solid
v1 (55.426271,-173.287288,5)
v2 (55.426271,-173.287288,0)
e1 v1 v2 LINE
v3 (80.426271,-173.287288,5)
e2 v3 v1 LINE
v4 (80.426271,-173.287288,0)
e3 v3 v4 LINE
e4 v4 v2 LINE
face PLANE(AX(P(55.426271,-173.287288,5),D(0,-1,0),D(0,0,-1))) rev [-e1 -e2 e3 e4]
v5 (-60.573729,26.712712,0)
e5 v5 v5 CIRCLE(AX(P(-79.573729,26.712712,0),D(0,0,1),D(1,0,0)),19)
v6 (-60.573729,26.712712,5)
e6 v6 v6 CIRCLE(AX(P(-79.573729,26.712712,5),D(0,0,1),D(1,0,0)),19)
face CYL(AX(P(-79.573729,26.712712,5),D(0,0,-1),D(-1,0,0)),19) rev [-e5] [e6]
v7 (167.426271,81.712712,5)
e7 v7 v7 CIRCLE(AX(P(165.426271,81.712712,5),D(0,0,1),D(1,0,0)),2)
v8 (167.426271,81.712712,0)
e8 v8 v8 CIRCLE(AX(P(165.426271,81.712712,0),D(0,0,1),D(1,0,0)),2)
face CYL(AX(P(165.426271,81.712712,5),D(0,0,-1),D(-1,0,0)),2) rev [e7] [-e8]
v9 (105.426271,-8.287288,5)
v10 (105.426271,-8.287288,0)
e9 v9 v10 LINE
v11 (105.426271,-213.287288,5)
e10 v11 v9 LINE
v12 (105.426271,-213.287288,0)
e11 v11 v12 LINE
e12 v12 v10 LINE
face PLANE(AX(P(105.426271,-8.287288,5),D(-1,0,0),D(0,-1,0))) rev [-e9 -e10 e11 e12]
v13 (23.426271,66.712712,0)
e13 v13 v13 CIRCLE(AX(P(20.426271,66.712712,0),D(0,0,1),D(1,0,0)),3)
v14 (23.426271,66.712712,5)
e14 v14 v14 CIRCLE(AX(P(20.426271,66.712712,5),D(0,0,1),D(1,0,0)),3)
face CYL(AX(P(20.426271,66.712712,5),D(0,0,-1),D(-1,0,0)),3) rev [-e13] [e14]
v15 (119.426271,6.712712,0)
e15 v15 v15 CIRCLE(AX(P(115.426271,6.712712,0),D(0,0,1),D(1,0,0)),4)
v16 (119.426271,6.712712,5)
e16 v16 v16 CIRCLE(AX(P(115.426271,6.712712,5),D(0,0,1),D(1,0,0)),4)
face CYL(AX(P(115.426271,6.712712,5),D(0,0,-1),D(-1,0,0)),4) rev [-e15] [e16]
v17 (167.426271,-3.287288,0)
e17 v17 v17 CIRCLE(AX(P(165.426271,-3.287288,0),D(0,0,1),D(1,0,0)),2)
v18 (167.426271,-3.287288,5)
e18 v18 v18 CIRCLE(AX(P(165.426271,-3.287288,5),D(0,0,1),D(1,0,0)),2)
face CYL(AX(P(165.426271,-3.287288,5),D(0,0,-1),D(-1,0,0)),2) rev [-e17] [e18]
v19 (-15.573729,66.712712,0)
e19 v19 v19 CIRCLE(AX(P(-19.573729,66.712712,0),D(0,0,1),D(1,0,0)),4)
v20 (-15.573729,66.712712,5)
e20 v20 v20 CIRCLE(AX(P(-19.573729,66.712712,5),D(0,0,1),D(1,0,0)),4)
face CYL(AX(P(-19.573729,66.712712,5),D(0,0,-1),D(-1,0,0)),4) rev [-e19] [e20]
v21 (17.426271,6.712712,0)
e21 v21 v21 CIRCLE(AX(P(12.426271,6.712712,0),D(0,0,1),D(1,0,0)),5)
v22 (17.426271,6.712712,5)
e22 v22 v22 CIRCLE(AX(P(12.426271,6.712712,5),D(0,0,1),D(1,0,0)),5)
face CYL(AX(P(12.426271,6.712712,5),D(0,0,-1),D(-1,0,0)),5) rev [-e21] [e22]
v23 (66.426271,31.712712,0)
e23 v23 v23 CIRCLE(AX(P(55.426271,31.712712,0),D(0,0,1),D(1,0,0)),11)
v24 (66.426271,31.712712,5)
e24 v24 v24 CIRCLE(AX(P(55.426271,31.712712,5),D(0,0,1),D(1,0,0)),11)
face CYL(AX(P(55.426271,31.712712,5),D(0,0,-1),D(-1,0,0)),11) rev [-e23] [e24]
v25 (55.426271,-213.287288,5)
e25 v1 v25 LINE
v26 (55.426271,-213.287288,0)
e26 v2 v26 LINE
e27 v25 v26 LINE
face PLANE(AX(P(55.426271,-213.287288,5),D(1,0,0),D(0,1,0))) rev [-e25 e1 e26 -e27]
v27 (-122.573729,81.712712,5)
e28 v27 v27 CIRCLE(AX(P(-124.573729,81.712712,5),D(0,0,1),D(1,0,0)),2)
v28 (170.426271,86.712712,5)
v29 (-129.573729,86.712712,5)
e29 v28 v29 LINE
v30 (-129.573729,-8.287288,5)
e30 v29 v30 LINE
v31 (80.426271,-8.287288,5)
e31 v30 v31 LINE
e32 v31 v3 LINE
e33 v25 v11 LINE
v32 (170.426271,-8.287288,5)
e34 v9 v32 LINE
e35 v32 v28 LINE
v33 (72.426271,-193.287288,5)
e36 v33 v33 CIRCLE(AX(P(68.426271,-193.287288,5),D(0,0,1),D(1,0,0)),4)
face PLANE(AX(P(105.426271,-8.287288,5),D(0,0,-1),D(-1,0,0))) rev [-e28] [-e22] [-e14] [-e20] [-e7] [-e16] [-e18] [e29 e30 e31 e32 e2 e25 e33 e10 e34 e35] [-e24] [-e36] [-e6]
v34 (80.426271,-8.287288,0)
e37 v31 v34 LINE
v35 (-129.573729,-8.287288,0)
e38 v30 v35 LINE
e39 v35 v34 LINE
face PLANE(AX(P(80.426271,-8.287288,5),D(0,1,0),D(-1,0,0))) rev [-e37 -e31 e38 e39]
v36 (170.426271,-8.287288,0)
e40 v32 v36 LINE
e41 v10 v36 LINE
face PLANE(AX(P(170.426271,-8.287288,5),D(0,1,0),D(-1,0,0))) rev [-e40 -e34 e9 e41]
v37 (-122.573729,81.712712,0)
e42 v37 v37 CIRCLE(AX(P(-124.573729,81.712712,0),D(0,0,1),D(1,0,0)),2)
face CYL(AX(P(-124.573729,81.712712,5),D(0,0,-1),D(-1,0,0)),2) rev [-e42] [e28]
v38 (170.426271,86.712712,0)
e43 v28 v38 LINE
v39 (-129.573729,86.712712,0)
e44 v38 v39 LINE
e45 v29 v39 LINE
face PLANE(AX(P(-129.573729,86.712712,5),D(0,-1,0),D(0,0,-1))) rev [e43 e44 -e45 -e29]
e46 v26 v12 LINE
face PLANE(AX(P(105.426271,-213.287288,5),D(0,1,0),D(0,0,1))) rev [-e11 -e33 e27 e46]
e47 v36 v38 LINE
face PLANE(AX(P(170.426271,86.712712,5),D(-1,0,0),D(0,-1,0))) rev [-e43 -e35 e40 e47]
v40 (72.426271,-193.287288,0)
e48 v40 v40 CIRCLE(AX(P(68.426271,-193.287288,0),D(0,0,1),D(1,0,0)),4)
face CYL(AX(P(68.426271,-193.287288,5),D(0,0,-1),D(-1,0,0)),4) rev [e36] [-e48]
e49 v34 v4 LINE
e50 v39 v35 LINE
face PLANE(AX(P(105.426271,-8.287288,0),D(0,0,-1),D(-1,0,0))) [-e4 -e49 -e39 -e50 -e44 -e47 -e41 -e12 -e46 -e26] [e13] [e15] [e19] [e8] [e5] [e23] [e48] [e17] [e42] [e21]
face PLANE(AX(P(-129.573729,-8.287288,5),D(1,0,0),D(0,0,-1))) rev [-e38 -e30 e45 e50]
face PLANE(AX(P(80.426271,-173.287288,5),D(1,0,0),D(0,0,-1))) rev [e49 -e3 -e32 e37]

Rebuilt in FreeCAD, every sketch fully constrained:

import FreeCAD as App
import Part
import Sketcher


def add_polygon(sketch, points):
    """Adds a closed chain of lines whose ends are joined by coincident constraints."""
    first, n = sketch.GeometryCount, len(points)
    for a, b in zip(points, points[1:] + points[:1]):
        sketch.addGeometry(Part.LineSegment(App.Vector(*a, 0), App.Vector(*b, 0)), False)
    for i in range(n):
        sketch.addConstraint(Sketcher.Constraint("Coincident", first + i, 2, first + (i + 1) % n, 1))

doc = App.newDocument("Part")
body = doc.addObject("PartDesign::Body", "Body")

# Sketch on XY plane
sketch1 = body.newObject("Sketcher::SketchObject", "Sketch")
sketch1.AttachmentSupport = (doc.getObject("XY_Plane"), [""])
sketch1.MapMode = "FlatFace"
add_polygon(sketch1, [(55.4, -213.3), (105.4, -213.3), (105.4, -8.3), (170.4, -8.3), (170.4, 86.7), (-129.6, 86.7), (-129.6, -8.3), (80.4, -8.3), (80.4, -173.3), (55.4, -173.3)])  # lines 0-9
sketch1.addGeometry(Part.Circle(App.Vector(68.4, -193.3, 0), App.Vector(0, 0, 1), 4), False)  # 10
sketch1.addGeometry(Part.Circle(App.Vector(165.4, -3.3, 0), App.Vector(0, 0, 1), 2), False)  # 11
sketch1.addGeometry(Part.Circle(App.Vector(115.4, 6.7, 0), App.Vector(0, 0, 1), 4), False)  # 12
sketch1.addGeometry(Part.Circle(App.Vector(165.4, 81.7, 0), App.Vector(0, 0, 1), 2), False)  # 13
sketch1.addGeometry(Part.Circle(App.Vector(55.4, 31.7, 0), App.Vector(0, 0, 1), 11), False)  # 14
sketch1.addGeometry(Part.Circle(App.Vector(12.4, 6.7, 0), App.Vector(0, 0, 1), 5), False)  # 15
sketch1.addGeometry(Part.Circle(App.Vector(20.4, 66.7, 0), App.Vector(0, 0, 1), 3), False)  # 16
sketch1.addGeometry(Part.Circle(App.Vector(-19.6, 66.7, 0), App.Vector(0, 0, 1), 4), False)  # 17
sketch1.addGeometry(Part.Circle(App.Vector(-79.6, 26.7, 0), App.Vector(0, 0, 1), 19), False)  # 18
sketch1.addGeometry(Part.Circle(App.Vector(-124.6, 81.7, 0), App.Vector(0, 0, 1), 2), False)  # 19
sketch1.addConstraint([
    Sketcher.Constraint("Horizontal", 0),
    Sketcher.Constraint("Vertical", 1),
    Sketcher.Constraint("Horizontal", 2),
    Sketcher.Constraint("Vertical", 3),
    Sketcher.Constraint("Horizontal", 4),
    Sketcher.Constraint("Vertical", 5),
    Sketcher.Constraint("Horizontal", 6),
    Sketcher.Constraint("Vertical", 7),
    Sketcher.Constraint("Horizontal", 8),
    Sketcher.Constraint("Vertical", 9),
    Sketcher.Constraint("Equal", 10, 12),
    Sketcher.Constraint("Equal", 11, 13),
    Sketcher.Constraint("Equal", 12, 17),
    Sketcher.Constraint("Equal", 13, 19),
    Sketcher.Constraint("Horizontal", 12, 3, 15, 3),
    Sketcher.Constraint("Horizontal", 16, 3, 17, 3),
    Sketcher.Constraint("Horizontal", 13, 3, 19, 3),
    Sketcher.Constraint("Horizontal", 2, 2, 5, 2),
    Sketcher.Constraint("Vertical", 11, 3, 13, 3),
    Sketcher.Constraint("Vertical", 14, 3, 8, 2),
    Sketcher.Constraint("Diameter", 10, 8.0),
    Sketcher.Constraint("Diameter", 11, 4.0),
    Sketcher.Constraint("Diameter", 14, 22.0),
    Sketcher.Constraint("Diameter", 15, 10.0),
    Sketcher.Constraint("Diameter", 16, 6.0),
    Sketcher.Constraint("Diameter", 18, 38.0),
    Sketcher.Constraint("DistanceX", 0, 1, 0, 2, 50.0),
    Sketcher.Constraint("DistanceX", 2, 1, 2, 2, 65.0),
    Sketcher.Constraint("DistanceX", 4, 2, 4, 1, 300.0),
    Sketcher.Constraint("DistanceX", 6, 1, 6, 2, 210.0),
    Sketcher.Constraint("DistanceY", 1, 1, 1, 2, 205.0),
    Sketcher.Constraint("DistanceY", 3, 1, 3, 2, 95.0),
    Sketcher.Constraint("DistanceY", 7, 2, 7, 1, 165.0),
    Sketcher.Constraint("DistanceX", 10, 3, 11, 3, 97.0),
    Sketcher.Constraint("DistanceY", 10, 3, 11, 3, 190.0),
    Sketcher.Constraint("DistanceX", 12, 3, 11, 3, 50.0),
    Sketcher.Constraint("DistanceY", 11, 3, 12, 3, 10.0),
    Sketcher.Constraint("DistanceY", 11, 3, 13, 3, 85.0),
    Sketcher.Constraint("DistanceX", 14, 3, 12, 3, 60.0),
    Sketcher.Constraint("DistanceY", 12, 3, 14, 3, 25.0),
    Sketcher.Constraint("DistanceX", 15, 3, 14, 3, 43.0),
    Sketcher.Constraint("DistanceX", 16, 3, 14, 3, 35.0),
    Sketcher.Constraint("DistanceY", 14, 3, 16, 3, 35.0),
    Sketcher.Constraint("DistanceX", 17, 3, 16, 3, 40.0),
    Sketcher.Constraint("DistanceX", 18, 3, 17, 3, 60.0),
    Sketcher.Constraint("DistanceY", 18, 3, 17, 3, 40.0),
    Sketcher.Constraint("DistanceX", 19, 3, 18, 3, 45.0),
    Sketcher.Constraint("DistanceY", 0, 2, 10, 3, 20.0),
    Sketcher.Constraint("DistanceX", -1, 1, 10, 3, 68.426271),
    Sketcher.Constraint("DistanceY", 10, 3, -1, 1, 193.287288),
])
pad1 = body.newObject("PartDesign::Pad", "Pad")
pad1.Profile = sketch1
pad1.Length = 5

doc.recompute()
